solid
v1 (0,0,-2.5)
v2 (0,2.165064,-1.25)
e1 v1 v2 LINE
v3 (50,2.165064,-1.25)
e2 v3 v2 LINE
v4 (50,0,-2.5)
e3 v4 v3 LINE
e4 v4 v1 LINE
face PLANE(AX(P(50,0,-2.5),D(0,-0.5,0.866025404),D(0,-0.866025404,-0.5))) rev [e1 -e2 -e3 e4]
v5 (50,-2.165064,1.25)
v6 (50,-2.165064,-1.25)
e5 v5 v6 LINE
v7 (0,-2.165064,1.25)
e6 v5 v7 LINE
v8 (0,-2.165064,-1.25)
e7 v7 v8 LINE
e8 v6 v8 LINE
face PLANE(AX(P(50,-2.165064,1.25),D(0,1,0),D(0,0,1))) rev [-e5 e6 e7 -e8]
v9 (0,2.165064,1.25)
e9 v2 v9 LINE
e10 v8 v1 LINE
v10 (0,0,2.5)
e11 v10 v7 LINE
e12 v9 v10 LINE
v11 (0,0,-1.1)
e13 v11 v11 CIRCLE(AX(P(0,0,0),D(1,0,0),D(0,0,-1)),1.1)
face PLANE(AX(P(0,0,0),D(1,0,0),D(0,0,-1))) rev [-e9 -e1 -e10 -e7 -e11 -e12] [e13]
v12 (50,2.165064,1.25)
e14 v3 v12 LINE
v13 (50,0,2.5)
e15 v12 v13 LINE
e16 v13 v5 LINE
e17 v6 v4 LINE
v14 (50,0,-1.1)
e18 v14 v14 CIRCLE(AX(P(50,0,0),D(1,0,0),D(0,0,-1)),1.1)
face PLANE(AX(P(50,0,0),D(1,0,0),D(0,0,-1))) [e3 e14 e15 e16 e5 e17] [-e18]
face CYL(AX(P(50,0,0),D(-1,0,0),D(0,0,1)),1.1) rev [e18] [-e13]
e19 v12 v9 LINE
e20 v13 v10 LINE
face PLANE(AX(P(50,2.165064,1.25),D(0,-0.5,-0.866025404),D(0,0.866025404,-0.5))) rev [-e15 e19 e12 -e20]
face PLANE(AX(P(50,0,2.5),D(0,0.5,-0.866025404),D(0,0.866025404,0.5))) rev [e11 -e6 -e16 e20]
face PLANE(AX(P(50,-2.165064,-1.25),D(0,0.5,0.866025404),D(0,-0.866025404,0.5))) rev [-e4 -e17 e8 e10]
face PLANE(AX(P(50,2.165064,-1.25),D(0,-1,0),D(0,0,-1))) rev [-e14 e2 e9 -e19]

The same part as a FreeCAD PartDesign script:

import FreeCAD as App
import Part
import Sketcher
Q = App.Units.Quantity


def add_polygon(sketch, points):
    """Adds a closed chain of lines whose ends are joined by coincident constraints."""
    first, n = sketch.GeometryCount, len(points)
    for a, b in zip(points, points[1:] + points[:1]):
        sketch.addGeometry(Part.LineSegment(App.Vector(*a, 0), App.Vector(*b, 0)), False)
    for i in range(n):
        sketch.addConstraint(Sketcher.Constraint("Coincident", first + i, 2, first + (i + 1) % n, 1))

doc = App.newDocument("Part")
params = doc.addObject("Spreadsheet::Sheet", "Params")
for row, (alias, value) in enumerate([
    ("sketch1_diameter", "2.2 mm"),
    ("sketch1_height", "2.5 mm"),
    ("pad1_length", "50 mm"),
], start=1):
    params.set(f"A{row}", alias)
    params.set(f"B{row}", "=" + value)
    params.setAlias(f"B{row}", alias)

body = doc.addObject("PartDesign::Body", "Body")

# Sketch on YZ plane
sketch1 = doc.addObject("Sketcher::SketchObject", "Sketch")
body.addObject(sketch1)
sketch1.AttachmentSupport = (doc.YZ_Plane, [""])
sketch1.MapMode = "FlatFace"
add_polygon(sketch1, [(2.2, -1.2), (2.2, 1.2), (0, 2.5), (-2.2, 1.2), (-2.2, -1.2), (0, -2.5)])  # lines 0-5
sketch1.addGeometry(Part.Circle(App.Vector(0, 0, 0), App.Vector(0, 0, 1), 1.1), False)  # 6
sketch1.addConstraint([
    Sketcher.Constraint("Vertical", 0),
    Sketcher.Constraint("Vertical", 3),
    Sketcher.Constraint("Coincident", 6, 3, -1, 1),
    Sketcher.Constraint("Symmetric", 0, 2, 3, 2, -1, 1),
    Sketcher.Constraint("Symmetric", 1, 2, 4, 2, -1, 1),
    Sketcher.Constraint("PointOnObject", 1, 2, -2),
    Sketcher.Constraint("Parallel", 2, 5),
    Sketcher.Constraint("Horizontal", 0, 2, 2, 2),
    Sketcher.Constraint("Diameter", 6, 2.2),
    Sketcher.Constraint("Angle", 1, Q("150 deg")),
    Sketcher.Constraint("DistanceY", 0, 1, 0, 2, 2.5),
    Sketcher.Constraint("DistanceY", 4, 2, 1, 2, 5.0),
])
sketch1.setExpression("Constraints[14]", "Params.sketch1_diameter")
sketch1.setExpression("Constraints[16]", "Params.sketch1_height")
pad1 = doc.addObject("PartDesign::Pad", "Pad")
body.addObject(pad1)
pad1.Profile = sketch1
pad1.setExpression("Length", "Params.pad1_length")

doc.recompute()
